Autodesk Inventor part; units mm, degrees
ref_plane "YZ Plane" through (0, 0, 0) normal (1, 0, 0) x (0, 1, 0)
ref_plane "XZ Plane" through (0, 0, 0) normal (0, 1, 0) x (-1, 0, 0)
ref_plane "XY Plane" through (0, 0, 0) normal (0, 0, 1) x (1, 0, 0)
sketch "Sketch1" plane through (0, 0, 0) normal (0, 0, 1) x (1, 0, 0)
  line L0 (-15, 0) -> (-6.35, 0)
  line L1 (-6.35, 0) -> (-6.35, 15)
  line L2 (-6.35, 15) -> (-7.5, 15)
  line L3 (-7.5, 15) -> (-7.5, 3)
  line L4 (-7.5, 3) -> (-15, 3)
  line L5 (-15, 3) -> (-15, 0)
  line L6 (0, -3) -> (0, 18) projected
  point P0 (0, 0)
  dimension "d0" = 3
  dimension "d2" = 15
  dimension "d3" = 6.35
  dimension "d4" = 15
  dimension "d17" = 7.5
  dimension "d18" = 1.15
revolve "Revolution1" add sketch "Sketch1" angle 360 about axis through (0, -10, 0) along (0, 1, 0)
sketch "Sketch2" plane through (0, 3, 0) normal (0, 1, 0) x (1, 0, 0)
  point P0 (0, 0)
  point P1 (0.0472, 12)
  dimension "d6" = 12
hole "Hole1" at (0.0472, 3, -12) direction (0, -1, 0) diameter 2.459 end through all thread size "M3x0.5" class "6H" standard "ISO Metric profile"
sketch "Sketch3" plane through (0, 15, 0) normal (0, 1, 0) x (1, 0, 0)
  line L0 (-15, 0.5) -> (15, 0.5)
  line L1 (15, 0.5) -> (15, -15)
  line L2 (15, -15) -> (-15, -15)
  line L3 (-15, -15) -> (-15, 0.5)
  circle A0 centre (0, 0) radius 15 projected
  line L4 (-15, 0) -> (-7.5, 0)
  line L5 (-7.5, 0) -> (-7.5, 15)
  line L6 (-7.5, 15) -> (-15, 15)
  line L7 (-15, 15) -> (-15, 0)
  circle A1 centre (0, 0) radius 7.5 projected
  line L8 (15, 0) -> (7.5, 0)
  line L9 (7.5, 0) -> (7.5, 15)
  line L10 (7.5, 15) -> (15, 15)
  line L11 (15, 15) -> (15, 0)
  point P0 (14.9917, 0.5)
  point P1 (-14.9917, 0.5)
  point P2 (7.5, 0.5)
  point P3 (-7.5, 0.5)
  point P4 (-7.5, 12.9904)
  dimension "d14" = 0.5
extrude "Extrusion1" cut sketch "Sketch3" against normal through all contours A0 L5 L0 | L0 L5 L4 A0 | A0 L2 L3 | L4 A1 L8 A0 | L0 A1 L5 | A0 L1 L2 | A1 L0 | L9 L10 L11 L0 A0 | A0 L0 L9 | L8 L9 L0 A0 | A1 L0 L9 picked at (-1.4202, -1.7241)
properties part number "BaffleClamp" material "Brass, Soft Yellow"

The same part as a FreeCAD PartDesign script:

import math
import FreeCAD as App
import Part
import Sketcher
from FreeCAD import Vector


def add_polygon(sketch, points):
    """Adds a closed chain of lines whose ends are joined by coincident constraints."""
    first, n = sketch.GeometryCount, len(points)
    for a, b in zip(points, points[1:] + points[:1]):
        sketch.addGeometry(Part.LineSegment(App.Vector(*a, 0), App.Vector(*b, 0)), False)
    for i in range(n):
        sketch.addConstraint(Sketcher.Constraint("Coincident", first + i, 2, first + (i + 1) % n, 1))

doc = App.newDocument("Part")
body = doc.addObject("PartDesign::Body", "Body")

sketch1 = doc.addObject("Sketcher::SketchObject", "Sketch")
body.addObject(sketch1)
sketch1.AttachmentSupport = (doc.XY_Plane, [""])
sketch1.MapMode = "FlatFace"
add_polygon(sketch1, [(-15, 3), (-15, 0), (-6.3, 0), (-6.3, 15), (-7.5, 15), (-7.5, 3)])
sketch1.addConstraint(Sketcher.Constraint("Vertical", 0))
sketch1.addConstraint(Sketcher.Constraint("Horizontal", 1))
sketch1.addConstraint(Sketcher.Constraint("Vertical", 2))
sketch1.addConstraint(Sketcher.Constraint("Horizontal", 3))
sketch1.addConstraint(Sketcher.Constraint("Vertical", 4))
sketch1.addConstraint(Sketcher.Constraint("Horizontal", 5))
sketch1.addConstraint(Sketcher.Constraint("PointOnObject", 0, 2, -1))
sketch1.addConstraint(Sketcher.Constraint("DistanceY", 0, 2, 0, 1, 3.0))
sketch1.addConstraint(Sketcher.Constraint("DistanceY", 2, 1, 2, 2, 15.0))
sketch1.addConstraint(Sketcher.Constraint("DistanceX", 5, 2, 5, 1, 7.5))
sketch1.addConstraint(Sketcher.Constraint("DistanceX", 0, 2, -1, 1, 15.0))
sketch1.addConstraint(Sketcher.Constraint("DistanceX", 3, 2, 3, 1, 1.15))
revolution = doc.addObject("PartDesign::Revolution", "Revolution")
body.addObject(revolution)
revolution.Profile = sketch1
revolution.ReferenceAxis = (sketch1, ["V_Axis"])
revolution.Angle = 360

sketch2 = doc.addObject("Sketcher::SketchObject", "Sketch001")
body.addObject(sketch2)
sketch2.AttachmentSupport = (doc.XZ_Plane, [""])
sketch2.MapMode = "FlatFace"
sketch2.AttachmentOffset = App.Placement(Vector(0, 0, -3), App.Rotation())
sketch2.addGeometry(Part.Circle(Vector(0, -12, 0), Vector(0, 0, 1), 1.2), False)
sketch2.addConstraint(Sketcher.Constraint("Diameter", 0, 2.459))
sketch2.addConstraint(Sketcher.Constraint("DistanceY", 0, 3, -1, 1, 12.0))
sketch2.addConstraint(Sketcher.Constraint("DistanceX", -1, 1, 0, 3, 0.0472))
doc.recompute()
hole = doc.addObject("PartDesign::Hole", "Hole")
body.addObject(hole)
hole.Profile = sketch2
hole.ThreadType = "None"
hole.Diameter = 2.459
hole.DepthType = "ThroughAll"
hole.Reversed = True

sketch3 = doc.addObject("Sketcher::SketchObject", "Sketch002")
body.addObject(sketch3)
sketch3.AttachmentSupport = (doc.XZ_Plane, [""])
sketch3.MapMode = "FlatFace"
sketch3.AttachmentOffset = App.Placement(Vector(0, 0, -15), App.Rotation())
sketch3.addGeometry(Part.ArcOfCircle(Part.Circle(Vector(0, 0, 0), Vector(0, 0, 1), 15), math.radians(180), math.radians(240)), False)
sketch3.addGeometry(Part.LineSegment(Vector(-15, 0, 0), Vector(-15, 15, 0)), False)
sketch3.addGeometry(Part.LineSegment(Vector(-15, 15, 0), Vector(15, 15, 0)), False)
sketch3.addGeometry(Part.LineSegment(Vector(15, 15, 0), Vector(15, 0, 0)), False)
sketch3.addGeometry(Part.ArcOfCircle(Part.Circle(Vector(0, 0, 0), Vector(0, 0, 1), 15), math.radians(-1.91), math.radians(0)), False)
sketch3.addGeometry(Part.LineSegment(Vector(14.992, -0.5, 0), Vector(15, -0.5, 0)), False)
sketch3.addGeometry(Part.LineSegment(Vector(15, -0.5, 0), Vector(15, -15, 0)), False)
sketch3.addGeometry(Part.LineSegment(Vector(15, -15, 0), Vector(7.5, -15, 0)), False)
sketch3.addGeometry(Part.LineSegment(Vector(7.5, -15, 0), Vector(7.5, -0.5, 0)), False)
sketch3.addGeometry(Part.LineSegment(Vector(7.5, -0.5, 0), Vector(-7.5, -0.5, 0)), False)
sketch3.addGeometry(Part.LineSegment(Vector(-7.5, -0.5, 0), Vector(-7.5, -12.99, 0)), False)
sketch3.addConstraint(Sketcher.Constraint("Tangent", 0, 1, 1, 1))
sketch3.addConstraint(Sketcher.Constraint("Coincident", 1, 2, 2, 1))
sketch3.addConstraint(Sketcher.Constraint("Coincident", 2, 2, 3, 1))
sketch3.addConstraint(Sketcher.Constraint("Tangent", 3, 2, 4, 2))
sketch3.addConstraint(Sketcher.Constraint("Coincident", 4, 1, 5, 1))
sketch3.addConstraint(Sketcher.Constraint("Coincident", 5, 2, 6, 1))
sketch3.addConstraint(Sketcher.Constraint("Coincident", 6, 2, 7, 1))
sketch3.addConstraint(Sketcher.Constraint("Coincident", 7, 2, 8, 1))
sketch3.addConstraint(Sketcher.Constraint("Coincident", 8, 2, 9, 1))
sketch3.addConstraint(Sketcher.Constraint("Coincident", 9, 2, 10, 1))
sketch3.addConstraint(Sketcher.Constraint("Coincident", 10, 2, 0, 2))
sketch3.addConstraint(Sketcher.Constraint("Vertical", 1))
sketch3.addConstraint(Sketcher.Constraint("Horizontal", 2))
sketch3.addConstraint(Sketcher.Constraint("Vertical", 3))
sketch3.addConstraint(Sketcher.Constraint("Horizontal", 5))
sketch3.addConstraint(Sketcher.Constraint("Vertical", 6))
sketch3.addConstraint(Sketcher.Constraint("Horizontal", 7))
sketch3.addConstraint(Sketcher.Constraint("Vertical", 8))
sketch3.addConstraint(Sketcher.Constraint("Horizontal", 9))
sketch3.addConstraint(Sketcher.Constraint("Vertical", 10))
sketch3.addConstraint(Sketcher.Constraint("Coincident", 0, 3, -1, 1))
sketch3.addConstraint(Sketcher.Constraint("Coincident", 4, 3, -1, 1))
sketch3.addConstraint(Sketcher.Constraint("Equal", 0, 4))
sketch3.addConstraint(Sketcher.Constraint("Symmetric", 1, 2, 6, 2, -1, 1))
sketch3.addConstraint(Sketcher.Constraint("Horizontal", 5, 2, 8, 2))
sketch3.addConstraint(Sketcher.Constraint("Equal", 9, 1))
sketch3.addConstraint(Sketcher.Constraint("Radius", 0, 15.0))
sketch3.addConstraint(Sketcher.Constraint("DistanceY", 4, 1, -1, 1, 0.5))
sketch3.addConstraint(Sketcher.Constraint("DistanceX", 9, 2, 9, 1, 15.0))
sketch3.addConstraint(Sketcher.Constraint("DistanceX", 7, 2, 7, 1, 7.5))
pocket1 = doc.addObject("PartDesign::Pocket", "Pocket")
body.addObject(pocket1)
pocket1.Profile = sketch3
pocket1.Type = "ThroughAll"
pocket1.Reversed = True

doc.recompute()
